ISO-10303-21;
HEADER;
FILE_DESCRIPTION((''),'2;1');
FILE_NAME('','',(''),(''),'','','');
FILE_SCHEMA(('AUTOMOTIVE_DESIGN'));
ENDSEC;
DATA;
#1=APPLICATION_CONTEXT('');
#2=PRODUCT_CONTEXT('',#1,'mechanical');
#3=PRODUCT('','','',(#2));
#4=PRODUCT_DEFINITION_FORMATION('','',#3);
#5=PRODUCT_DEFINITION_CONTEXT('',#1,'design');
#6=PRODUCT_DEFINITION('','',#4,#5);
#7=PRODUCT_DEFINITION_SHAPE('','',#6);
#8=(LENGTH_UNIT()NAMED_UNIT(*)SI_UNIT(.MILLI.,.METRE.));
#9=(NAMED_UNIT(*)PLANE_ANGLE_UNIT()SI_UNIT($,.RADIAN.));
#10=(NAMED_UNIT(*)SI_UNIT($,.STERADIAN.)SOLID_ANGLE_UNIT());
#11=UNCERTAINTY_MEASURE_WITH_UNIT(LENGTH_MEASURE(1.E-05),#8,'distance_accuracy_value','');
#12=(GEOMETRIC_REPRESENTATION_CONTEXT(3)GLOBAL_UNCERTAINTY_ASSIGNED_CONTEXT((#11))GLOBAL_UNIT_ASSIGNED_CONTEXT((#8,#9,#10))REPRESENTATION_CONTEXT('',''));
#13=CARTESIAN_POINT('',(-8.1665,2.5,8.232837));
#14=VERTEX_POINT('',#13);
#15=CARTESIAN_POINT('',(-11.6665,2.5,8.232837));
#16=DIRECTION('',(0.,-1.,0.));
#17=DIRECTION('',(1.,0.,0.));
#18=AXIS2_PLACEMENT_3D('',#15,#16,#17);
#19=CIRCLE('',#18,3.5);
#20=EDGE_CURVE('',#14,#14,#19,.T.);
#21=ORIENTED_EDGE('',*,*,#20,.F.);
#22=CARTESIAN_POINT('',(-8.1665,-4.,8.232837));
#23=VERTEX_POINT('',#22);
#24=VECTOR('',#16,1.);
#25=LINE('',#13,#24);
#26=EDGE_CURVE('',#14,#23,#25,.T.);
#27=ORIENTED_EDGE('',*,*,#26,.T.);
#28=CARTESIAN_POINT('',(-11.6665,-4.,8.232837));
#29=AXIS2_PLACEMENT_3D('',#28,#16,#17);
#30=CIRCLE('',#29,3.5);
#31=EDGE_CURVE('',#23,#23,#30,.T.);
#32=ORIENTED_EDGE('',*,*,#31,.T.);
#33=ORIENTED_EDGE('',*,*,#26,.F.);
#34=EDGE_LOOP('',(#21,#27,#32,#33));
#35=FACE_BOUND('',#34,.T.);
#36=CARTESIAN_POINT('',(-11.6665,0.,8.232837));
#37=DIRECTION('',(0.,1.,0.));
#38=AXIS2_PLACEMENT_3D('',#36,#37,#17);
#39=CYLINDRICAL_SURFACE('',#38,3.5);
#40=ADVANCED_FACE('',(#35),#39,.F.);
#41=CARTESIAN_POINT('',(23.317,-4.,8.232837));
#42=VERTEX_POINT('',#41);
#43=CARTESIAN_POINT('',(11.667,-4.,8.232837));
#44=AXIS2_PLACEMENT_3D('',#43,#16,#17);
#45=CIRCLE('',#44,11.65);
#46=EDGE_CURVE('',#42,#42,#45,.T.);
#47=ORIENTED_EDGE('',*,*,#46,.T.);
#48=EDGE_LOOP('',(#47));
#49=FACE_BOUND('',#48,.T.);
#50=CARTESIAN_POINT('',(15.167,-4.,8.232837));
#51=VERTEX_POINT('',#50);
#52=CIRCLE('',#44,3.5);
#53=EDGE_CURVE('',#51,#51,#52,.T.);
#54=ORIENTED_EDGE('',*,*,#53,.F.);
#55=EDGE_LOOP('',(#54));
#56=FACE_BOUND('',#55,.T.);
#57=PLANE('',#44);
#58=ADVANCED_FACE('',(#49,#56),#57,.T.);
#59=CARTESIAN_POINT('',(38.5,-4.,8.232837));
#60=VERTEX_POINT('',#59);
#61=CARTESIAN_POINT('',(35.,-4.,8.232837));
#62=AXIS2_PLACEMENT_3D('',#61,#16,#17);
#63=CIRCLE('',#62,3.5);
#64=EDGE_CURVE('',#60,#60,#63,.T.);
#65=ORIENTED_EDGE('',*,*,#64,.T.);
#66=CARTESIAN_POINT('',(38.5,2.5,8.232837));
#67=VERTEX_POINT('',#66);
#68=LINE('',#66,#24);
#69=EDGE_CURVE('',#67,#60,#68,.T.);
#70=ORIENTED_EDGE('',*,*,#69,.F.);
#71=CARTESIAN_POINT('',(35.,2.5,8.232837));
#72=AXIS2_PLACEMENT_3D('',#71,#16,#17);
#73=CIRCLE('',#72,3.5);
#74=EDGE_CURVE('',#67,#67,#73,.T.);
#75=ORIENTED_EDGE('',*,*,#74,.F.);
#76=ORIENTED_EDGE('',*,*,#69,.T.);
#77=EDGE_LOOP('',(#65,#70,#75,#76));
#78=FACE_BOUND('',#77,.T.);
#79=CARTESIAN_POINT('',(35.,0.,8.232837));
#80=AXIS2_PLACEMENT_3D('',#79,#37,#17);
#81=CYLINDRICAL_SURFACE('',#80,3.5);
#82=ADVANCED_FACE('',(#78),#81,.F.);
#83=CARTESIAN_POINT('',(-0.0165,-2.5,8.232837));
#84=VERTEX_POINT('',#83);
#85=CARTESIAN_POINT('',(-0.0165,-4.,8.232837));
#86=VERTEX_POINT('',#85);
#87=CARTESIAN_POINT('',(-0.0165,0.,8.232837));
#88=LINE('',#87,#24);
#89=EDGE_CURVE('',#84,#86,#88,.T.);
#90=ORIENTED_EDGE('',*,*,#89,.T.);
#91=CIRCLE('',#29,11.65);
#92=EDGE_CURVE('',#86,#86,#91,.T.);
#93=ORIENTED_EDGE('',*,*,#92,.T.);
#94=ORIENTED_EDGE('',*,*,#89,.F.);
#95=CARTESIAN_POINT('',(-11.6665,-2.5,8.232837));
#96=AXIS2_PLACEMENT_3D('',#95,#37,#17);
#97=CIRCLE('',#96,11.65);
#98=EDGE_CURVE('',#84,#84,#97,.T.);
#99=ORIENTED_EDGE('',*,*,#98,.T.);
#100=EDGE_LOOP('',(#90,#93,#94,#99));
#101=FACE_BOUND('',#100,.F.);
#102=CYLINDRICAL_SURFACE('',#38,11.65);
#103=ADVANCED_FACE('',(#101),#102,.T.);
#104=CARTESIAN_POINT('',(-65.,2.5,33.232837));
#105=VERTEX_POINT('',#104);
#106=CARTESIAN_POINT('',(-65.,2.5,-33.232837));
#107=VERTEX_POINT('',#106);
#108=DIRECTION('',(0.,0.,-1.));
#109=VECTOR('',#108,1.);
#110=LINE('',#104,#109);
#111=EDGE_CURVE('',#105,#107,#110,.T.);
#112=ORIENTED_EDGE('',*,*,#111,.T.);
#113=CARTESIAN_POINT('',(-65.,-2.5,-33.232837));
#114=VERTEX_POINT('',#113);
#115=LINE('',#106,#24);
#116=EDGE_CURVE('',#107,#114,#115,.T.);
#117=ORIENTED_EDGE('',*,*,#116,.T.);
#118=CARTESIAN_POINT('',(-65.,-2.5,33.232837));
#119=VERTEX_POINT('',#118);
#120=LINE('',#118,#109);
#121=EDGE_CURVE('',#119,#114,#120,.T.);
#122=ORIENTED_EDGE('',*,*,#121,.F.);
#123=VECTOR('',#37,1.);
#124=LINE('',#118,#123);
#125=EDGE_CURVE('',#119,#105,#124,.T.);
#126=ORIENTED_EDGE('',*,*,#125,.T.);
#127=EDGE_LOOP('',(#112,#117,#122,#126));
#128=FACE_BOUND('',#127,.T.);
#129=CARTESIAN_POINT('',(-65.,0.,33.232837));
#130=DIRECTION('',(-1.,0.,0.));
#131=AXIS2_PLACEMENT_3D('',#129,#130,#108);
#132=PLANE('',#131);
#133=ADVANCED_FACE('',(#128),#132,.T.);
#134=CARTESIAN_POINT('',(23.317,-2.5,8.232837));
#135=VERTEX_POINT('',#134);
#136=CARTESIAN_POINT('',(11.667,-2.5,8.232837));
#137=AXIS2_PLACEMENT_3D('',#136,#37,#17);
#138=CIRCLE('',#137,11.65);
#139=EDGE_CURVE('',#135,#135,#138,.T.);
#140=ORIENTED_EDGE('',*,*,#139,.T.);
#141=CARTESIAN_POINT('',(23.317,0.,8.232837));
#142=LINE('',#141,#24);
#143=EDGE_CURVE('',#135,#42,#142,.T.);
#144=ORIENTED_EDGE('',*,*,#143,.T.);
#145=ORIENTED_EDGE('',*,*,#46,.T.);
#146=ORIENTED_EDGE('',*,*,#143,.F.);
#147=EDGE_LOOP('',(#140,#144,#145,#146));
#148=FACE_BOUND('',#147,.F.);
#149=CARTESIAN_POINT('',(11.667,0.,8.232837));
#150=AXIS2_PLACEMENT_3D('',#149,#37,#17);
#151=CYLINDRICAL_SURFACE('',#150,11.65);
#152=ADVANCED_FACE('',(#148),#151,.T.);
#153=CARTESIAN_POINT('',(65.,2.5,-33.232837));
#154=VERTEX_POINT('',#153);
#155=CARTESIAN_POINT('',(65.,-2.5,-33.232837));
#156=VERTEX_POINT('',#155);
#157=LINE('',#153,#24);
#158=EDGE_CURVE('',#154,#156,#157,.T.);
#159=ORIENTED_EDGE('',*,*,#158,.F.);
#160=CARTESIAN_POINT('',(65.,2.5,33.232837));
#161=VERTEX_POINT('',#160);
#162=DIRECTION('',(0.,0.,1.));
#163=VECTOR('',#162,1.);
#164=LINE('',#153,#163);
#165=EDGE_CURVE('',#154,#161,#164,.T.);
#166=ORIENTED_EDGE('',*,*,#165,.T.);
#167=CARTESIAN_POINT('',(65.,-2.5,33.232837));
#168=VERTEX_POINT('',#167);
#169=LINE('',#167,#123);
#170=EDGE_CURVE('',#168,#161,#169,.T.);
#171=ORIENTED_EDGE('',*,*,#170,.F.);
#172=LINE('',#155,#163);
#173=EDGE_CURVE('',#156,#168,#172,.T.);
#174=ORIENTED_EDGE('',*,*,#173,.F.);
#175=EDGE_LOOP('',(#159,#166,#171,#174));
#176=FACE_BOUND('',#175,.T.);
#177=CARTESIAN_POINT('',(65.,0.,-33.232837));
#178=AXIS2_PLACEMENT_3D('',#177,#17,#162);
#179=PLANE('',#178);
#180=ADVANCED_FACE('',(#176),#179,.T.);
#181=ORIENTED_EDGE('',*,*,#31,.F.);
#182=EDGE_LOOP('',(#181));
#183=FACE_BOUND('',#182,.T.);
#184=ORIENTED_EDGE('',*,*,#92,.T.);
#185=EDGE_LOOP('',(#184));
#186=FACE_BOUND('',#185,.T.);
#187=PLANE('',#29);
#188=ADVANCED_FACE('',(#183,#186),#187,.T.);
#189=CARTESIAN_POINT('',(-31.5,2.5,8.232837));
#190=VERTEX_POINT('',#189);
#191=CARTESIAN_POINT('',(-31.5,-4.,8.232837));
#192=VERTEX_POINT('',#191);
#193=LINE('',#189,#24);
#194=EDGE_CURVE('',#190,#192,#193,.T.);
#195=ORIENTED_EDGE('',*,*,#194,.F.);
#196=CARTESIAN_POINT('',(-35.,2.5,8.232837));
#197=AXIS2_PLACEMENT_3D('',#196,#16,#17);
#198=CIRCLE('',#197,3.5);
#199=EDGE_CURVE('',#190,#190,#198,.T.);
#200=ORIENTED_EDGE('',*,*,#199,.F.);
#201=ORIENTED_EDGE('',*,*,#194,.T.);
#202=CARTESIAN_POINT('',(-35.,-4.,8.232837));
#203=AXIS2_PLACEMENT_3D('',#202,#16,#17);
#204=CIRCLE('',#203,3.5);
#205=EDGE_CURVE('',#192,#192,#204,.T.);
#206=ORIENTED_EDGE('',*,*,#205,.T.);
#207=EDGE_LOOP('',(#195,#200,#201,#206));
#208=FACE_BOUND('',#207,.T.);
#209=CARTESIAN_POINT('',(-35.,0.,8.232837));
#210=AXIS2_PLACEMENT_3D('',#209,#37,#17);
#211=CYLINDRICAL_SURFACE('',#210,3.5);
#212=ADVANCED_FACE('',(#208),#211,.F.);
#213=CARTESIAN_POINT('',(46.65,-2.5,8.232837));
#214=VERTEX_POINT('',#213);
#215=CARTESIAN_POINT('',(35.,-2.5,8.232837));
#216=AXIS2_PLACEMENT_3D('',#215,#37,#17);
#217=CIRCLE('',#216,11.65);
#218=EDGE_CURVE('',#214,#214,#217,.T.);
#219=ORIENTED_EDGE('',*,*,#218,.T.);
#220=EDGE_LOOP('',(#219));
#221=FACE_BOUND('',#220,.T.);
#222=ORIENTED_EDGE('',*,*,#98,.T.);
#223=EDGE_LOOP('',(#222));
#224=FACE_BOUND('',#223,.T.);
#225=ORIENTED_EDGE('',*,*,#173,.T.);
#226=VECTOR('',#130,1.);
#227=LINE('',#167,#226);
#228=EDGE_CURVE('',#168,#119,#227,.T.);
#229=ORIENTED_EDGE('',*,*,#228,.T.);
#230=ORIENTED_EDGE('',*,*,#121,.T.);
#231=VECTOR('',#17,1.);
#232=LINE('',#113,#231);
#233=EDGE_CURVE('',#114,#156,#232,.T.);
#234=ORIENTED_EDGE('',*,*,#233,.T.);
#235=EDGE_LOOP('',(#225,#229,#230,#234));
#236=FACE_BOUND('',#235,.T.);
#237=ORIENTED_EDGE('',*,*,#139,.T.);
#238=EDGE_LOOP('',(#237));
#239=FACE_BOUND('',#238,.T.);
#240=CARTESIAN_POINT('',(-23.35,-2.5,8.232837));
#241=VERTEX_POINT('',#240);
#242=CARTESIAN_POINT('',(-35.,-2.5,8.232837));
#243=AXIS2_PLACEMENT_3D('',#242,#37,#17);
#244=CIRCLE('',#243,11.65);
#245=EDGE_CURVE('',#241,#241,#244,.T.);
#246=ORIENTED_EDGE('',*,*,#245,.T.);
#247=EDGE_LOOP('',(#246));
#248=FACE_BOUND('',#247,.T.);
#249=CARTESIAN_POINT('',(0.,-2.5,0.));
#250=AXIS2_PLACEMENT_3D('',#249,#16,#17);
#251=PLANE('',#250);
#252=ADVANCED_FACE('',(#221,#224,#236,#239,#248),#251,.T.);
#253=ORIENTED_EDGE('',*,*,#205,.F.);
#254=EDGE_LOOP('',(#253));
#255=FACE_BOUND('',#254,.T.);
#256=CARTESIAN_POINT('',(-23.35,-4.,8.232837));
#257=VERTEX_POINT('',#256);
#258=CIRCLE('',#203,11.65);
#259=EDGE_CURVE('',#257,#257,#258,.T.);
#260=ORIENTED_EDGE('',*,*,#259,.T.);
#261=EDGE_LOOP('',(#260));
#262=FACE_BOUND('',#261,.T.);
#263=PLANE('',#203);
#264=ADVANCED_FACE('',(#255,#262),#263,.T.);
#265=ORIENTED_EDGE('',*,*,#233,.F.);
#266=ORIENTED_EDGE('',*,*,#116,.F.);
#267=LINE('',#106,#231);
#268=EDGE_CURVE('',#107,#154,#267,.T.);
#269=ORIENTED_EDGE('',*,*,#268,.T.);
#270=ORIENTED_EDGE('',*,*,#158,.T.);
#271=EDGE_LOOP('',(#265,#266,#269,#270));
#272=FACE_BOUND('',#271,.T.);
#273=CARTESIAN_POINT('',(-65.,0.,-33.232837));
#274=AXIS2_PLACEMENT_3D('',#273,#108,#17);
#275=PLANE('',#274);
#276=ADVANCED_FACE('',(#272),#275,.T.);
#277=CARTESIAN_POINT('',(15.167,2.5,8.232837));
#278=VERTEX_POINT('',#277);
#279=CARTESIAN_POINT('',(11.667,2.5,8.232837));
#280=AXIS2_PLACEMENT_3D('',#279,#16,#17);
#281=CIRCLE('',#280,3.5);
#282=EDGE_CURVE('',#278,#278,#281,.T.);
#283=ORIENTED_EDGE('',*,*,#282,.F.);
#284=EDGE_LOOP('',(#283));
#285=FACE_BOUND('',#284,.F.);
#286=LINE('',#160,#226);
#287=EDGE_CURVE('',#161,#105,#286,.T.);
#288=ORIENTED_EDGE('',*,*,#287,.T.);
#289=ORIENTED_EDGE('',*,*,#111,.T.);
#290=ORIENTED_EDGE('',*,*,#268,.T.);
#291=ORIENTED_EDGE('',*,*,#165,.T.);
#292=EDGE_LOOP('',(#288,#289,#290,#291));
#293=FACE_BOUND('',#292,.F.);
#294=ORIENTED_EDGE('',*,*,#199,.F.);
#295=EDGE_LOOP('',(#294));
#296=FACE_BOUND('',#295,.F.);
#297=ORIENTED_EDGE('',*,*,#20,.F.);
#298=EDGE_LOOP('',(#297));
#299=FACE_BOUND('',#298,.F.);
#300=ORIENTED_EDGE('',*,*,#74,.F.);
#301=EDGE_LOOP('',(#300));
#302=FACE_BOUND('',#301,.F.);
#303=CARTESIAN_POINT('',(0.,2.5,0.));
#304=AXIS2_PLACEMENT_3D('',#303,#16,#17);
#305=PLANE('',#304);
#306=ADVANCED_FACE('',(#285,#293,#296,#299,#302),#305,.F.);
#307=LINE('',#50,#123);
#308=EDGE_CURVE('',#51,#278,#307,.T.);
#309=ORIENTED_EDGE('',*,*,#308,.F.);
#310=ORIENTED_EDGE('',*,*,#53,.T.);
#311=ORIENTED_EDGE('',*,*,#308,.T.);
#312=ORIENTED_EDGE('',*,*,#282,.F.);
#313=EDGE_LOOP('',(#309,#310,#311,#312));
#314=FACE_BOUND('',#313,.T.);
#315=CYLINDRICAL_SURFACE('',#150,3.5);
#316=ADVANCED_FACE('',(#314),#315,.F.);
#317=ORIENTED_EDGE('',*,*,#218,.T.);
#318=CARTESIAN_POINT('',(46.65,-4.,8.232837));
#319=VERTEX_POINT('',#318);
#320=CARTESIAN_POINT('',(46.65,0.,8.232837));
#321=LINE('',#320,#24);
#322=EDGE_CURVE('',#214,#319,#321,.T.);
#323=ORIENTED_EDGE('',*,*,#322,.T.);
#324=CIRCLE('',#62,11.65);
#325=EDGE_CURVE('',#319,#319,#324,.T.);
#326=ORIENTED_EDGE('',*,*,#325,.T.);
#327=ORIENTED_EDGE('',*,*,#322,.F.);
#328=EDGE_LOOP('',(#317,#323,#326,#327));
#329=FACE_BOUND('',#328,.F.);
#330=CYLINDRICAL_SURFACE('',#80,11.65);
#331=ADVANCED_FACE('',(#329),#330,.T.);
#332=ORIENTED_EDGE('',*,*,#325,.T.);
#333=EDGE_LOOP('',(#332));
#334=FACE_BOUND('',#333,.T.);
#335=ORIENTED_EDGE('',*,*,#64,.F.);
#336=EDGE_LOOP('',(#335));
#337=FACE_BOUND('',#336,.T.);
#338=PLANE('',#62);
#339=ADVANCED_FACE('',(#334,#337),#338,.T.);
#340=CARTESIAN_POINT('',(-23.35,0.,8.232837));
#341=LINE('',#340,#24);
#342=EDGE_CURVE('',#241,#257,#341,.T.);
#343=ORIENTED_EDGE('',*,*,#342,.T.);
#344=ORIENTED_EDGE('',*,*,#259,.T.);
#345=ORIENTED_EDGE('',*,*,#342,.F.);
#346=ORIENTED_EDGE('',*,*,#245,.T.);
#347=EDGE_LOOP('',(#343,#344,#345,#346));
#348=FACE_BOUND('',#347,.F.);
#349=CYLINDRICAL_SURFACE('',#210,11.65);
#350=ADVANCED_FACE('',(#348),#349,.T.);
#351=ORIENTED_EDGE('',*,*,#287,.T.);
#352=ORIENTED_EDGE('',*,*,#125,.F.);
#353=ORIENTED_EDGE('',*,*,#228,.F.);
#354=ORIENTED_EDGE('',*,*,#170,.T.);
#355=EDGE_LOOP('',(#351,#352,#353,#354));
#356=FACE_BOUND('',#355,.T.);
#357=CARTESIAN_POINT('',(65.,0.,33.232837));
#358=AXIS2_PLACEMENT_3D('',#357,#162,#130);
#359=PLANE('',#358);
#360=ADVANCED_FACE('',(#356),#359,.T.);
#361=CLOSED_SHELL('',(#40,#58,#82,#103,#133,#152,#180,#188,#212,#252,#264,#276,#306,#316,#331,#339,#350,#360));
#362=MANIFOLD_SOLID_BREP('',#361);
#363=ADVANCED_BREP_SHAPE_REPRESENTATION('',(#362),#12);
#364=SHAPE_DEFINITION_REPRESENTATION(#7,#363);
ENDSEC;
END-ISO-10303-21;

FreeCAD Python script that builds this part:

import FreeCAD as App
import Part
import Sketcher
Q = App.Units.Quantity

doc = App.newDocument("Part")
body = doc.addObject("PartDesign::Body", "Body")

# Sketch on XZ plane
sketch1 = body.newObject("Sketcher::SketchObject", "Sketch")
sketch1.AttachmentSupport = (doc.getObject("XZ_Plane"), [""])
sketch1.MapMode = "FlatFace"
sketch1.addGeometry([
    Part.LineSegment(App.Vector(-65, 33.232837, 0), App.Vector(-65, -33.232837, 0)),  # 0
    Part.LineSegment(App.Vector(-65, -33.232837, 0), App.Vector(65, -33.232837, 0)),  # 1
    Part.LineSegment(App.Vector(65, -33.232837, 0), App.Vector(65, 33.232837, 0)),  # 2
    Part.LineSegment(App.Vector(65, 33.232837, 0), App.Vector(-65, 33.232837, 0)),  # 3
    Part.Circle(App.Vector(-35, 8.232837, 0), App.Vector(0, 0, 1), 3.5),  # 4
    Part.Circle(App.Vector(-11.6665, 8.232837, 0), App.Vector(0, 0, 1), 3.5),  # 5
    Part.Circle(App.Vector(11.667, 8.232837, 0), App.Vector(0, 0, 1), 3.5),  # 6
    Part.Circle(App.Vector(35, 8.232837, 0), App.Vector(0, 0, 1), 3.5),  # 7
], False)
sketch1.addConstraint([
    Sketcher.Constraint("Coincident", 0, 2, 1, 1),
    Sketcher.Constraint("Coincident", 1, 2, 2, 1),
    Sketcher.Constraint("Coincident", 2, 2, 3, 1),
    Sketcher.Constraint("Coincident", 3, 2, 0, 1),
    Sketcher.Constraint("Vertical", 0),
    Sketcher.Constraint("Horizontal", 1),
    Sketcher.Constraint("Vertical", 2),
    Sketcher.Constraint("Horizontal", 3),
    Sketcher.Constraint("Equal", 4, 5),
    Sketcher.Constraint("Equal", 5, 6),
    Sketcher.Constraint("Equal", 6, 7),
    Sketcher.Constraint("Symmetric", 0, 2, 2, 2, -1, 1),
    Sketcher.Constraint("Symmetric", 4, 3, 7, 3, -2),
    Sketcher.Constraint("Horizontal", 4, 3, 5, 3),
    Sketcher.Constraint("Horizontal", 5, 3, 6, 3),
    Sketcher.Constraint("Diameter", 4, Q("7 mm")),
    Sketcher.Constraint("DistanceX", 1, 1, 1, 2, Q("130 mm")),
    Sketcher.Constraint("DistanceX", 4, 3, -1, 1, Q("35 mm")),
    Sketcher.Constraint("DistanceY", 7, 3, 2, 2, Q("25 mm")),
    Sketcher.Constraint("DistanceX", -1, 1, 6, 3, Q("11.667 mm")),
    Sketcher.Constraint("DistanceX", 5, 3, -1, 1, Q("11.6665 mm")),
    Sketcher.Constraint("DistanceY", 0, 2, 0, 1, Q("66.465674 mm")),
])
pad1 = body.newObject("PartDesign::Pad", "Pad")
pad1.Profile = sketch1
pad1.Length = 5
pad1.Midplane = True

# Sketch on XZ plane
sketch2 = body.newObject("Sketcher::SketchObject", "Sketch001")
sketch2.AttachmentSupport = (doc.getObject("XZ_Plane"), [""])
sketch2.MapMode = "FlatFace"
sketch2.addGeometry([
    Part.Circle(App.Vector(35, 8.232837, 0), App.Vector(0, 0, 1), 11.65),
    Part.Circle(App.Vector(35, 8.232837, 0), App.Vector(0, 0, 1), 3.5),
], False)
sketch2.addConstraint([
    Sketcher.Constraint("Coincident", 1, 3, 0, 3),
    Sketcher.Constraint("Diameter", 1, Q("7 mm")),
    Sketcher.Constraint("Diameter", 0, Q("23.3 mm")),
    Sketcher.Constraint("DistanceX", -1, 1, 0, 3, Q("35 mm")),
    Sketcher.Constraint("DistanceY", -1, 1, 0, 3, Q("8.232837 mm")),
])
pad2 = body.newObject("PartDesign::Pad", "Pad001")
pad2.Profile = sketch2
pad2.Length = 4

# Sketch on XZ plane
sketch3 = body.newObject("Sketcher::SketchObject", "Sketch002")
sketch3.AttachmentSupport = (doc.getObject("XZ_Plane"), [""])
sketch3.MapMode = "FlatFace"
sketch3.addGeometry([
    Part.Circle(App.Vector(-35, 8.232837, 0), App.Vector(0, 0, 1), 11.65),
    Part.Circle(App.Vector(-35, 8.232837, 0), App.Vector(0, 0, 1), 3.5),
], False)
sketch3.addConstraint([
    Sketcher.Constraint("Coincident", 1, 3, 0, 3),
    Sketcher.Constraint("Diameter", 1, Q("7 mm")),
    Sketcher.Constraint("Diameter", 0, Q("23.3 mm")),
    Sketcher.Constraint("DistanceX", 0, 3, -1, 1, Q("35 mm")),
    Sketcher.Constraint("DistanceY", -1, 1, 0, 3, Q("8.232837 mm")),
])
pad3 = body.newObject("PartDesign::Pad", "Pad002")
pad3.Profile = sketch3
pad3.Length = 4

# Sketch on XZ plane
sketch4 = body.newObject("Sketcher::SketchObject", "Sketch003")
sketch4.AttachmentSupport = (doc.getObject("XZ_Plane"), [""])
sketch4.MapMode = "FlatFace"
sketch4.addGeometry([
    Part.Circle(App.Vector(-11.6665, 8.232837, 0), App.Vector(0, 0, 1), 11.65),
    Part.Circle(App.Vector(-11.6665, 8.232837, 0), App.Vector(0, 0, 1), 3.5),
], False)
sketch4.addConstraint([
    Sketcher.Constraint("Coincident", 1, 3, 0, 3),
    Sketcher.Constraint("Diameter", 1, Q("7 mm")),
    Sketcher.Constraint("Diameter", 0, Q("23.3 mm")),
    Sketcher.Constraint("DistanceX", 0, 3, -1, 1, Q("11.6665 mm")),
    Sketcher.Constraint("DistanceY", -1, 1, 0, 3, Q("8.232837 mm")),
])
pad4 = body.newObject("PartDesign::Pad", "Pad003")
pad4.Profile = sketch4
pad4.Length = 4

# Sketch on XZ plane
sketch5 = body.newObject("Sketcher::SketchObject", "Sketch004")
sketch5.AttachmentSupport = (doc.getObject("XZ_Plane"), [""])
sketch5.MapMode = "FlatFace"
sketch5.addGeometry([
    Part.Circle(App.Vector(11.667, 8.232837, 0), App.Vector(0, 0, 1), 11.65),
    Part.Circle(App.Vector(11.667, 8.232837, 0), App.Vector(0, 0, 1), 3.5),
], False)
sketch5.addConstraint([
    Sketcher.Constraint("Coincident", 1, 3, 0, 3),
    Sketcher.Constraint("Diameter", 1, Q("7 mm")),
    Sketcher.Constraint("Diameter", 0, Q("23.3 mm")),
    Sketcher.Constraint("DistanceX", -1, 1, 0, 3, Q("11.667 mm")),
    Sketcher.Constraint("DistanceY", -1, 1, 0, 3, Q("8.232837 mm")),
])
pad5 = body.newObject("PartDesign::Pad", "Pad004")
pad5.Profile = sketch5
pad5.Length = 4

# Sketch on XZ plane
sketch6 = body.newObject("Sketcher::SketchObject", "Sketch005")
sketch6.AttachmentSupport = (doc.getObject("XZ_Plane"), [""])
sketch6.MapMode = "FlatFace"
sketch6.addGeometry([
    Part.Circle(App.Vector(11.667, 8.232837, 0), App.Vector(0, 0, 1), 11.65),
    Part.Circle(App.Vector(11.667, 8.232837, 0), App.Vector(0, 0, 1), 3.5),
], False)
sketch6.addConstraint([
    Sketcher.Constraint("Coincident", 1, 3, 0, 3),
    Sketcher.Constraint("Diameter", 1, Q("7 mm")),
    Sketcher.Constraint("Diameter", 0, Q("23.3 mm")),
    Sketcher.Constraint("DistanceX", -1, 1, 0, 3, Q("11.667 mm")),
    Sketcher.Constraint("DistanceY", -1, 1, 0, 3, Q("8.232837 mm")),
])
pad6 = body.newObject("PartDesign::Pad", "Pad005")
pad6.Profile = sketch6
pad6.Length = 4

doc.recompute()
